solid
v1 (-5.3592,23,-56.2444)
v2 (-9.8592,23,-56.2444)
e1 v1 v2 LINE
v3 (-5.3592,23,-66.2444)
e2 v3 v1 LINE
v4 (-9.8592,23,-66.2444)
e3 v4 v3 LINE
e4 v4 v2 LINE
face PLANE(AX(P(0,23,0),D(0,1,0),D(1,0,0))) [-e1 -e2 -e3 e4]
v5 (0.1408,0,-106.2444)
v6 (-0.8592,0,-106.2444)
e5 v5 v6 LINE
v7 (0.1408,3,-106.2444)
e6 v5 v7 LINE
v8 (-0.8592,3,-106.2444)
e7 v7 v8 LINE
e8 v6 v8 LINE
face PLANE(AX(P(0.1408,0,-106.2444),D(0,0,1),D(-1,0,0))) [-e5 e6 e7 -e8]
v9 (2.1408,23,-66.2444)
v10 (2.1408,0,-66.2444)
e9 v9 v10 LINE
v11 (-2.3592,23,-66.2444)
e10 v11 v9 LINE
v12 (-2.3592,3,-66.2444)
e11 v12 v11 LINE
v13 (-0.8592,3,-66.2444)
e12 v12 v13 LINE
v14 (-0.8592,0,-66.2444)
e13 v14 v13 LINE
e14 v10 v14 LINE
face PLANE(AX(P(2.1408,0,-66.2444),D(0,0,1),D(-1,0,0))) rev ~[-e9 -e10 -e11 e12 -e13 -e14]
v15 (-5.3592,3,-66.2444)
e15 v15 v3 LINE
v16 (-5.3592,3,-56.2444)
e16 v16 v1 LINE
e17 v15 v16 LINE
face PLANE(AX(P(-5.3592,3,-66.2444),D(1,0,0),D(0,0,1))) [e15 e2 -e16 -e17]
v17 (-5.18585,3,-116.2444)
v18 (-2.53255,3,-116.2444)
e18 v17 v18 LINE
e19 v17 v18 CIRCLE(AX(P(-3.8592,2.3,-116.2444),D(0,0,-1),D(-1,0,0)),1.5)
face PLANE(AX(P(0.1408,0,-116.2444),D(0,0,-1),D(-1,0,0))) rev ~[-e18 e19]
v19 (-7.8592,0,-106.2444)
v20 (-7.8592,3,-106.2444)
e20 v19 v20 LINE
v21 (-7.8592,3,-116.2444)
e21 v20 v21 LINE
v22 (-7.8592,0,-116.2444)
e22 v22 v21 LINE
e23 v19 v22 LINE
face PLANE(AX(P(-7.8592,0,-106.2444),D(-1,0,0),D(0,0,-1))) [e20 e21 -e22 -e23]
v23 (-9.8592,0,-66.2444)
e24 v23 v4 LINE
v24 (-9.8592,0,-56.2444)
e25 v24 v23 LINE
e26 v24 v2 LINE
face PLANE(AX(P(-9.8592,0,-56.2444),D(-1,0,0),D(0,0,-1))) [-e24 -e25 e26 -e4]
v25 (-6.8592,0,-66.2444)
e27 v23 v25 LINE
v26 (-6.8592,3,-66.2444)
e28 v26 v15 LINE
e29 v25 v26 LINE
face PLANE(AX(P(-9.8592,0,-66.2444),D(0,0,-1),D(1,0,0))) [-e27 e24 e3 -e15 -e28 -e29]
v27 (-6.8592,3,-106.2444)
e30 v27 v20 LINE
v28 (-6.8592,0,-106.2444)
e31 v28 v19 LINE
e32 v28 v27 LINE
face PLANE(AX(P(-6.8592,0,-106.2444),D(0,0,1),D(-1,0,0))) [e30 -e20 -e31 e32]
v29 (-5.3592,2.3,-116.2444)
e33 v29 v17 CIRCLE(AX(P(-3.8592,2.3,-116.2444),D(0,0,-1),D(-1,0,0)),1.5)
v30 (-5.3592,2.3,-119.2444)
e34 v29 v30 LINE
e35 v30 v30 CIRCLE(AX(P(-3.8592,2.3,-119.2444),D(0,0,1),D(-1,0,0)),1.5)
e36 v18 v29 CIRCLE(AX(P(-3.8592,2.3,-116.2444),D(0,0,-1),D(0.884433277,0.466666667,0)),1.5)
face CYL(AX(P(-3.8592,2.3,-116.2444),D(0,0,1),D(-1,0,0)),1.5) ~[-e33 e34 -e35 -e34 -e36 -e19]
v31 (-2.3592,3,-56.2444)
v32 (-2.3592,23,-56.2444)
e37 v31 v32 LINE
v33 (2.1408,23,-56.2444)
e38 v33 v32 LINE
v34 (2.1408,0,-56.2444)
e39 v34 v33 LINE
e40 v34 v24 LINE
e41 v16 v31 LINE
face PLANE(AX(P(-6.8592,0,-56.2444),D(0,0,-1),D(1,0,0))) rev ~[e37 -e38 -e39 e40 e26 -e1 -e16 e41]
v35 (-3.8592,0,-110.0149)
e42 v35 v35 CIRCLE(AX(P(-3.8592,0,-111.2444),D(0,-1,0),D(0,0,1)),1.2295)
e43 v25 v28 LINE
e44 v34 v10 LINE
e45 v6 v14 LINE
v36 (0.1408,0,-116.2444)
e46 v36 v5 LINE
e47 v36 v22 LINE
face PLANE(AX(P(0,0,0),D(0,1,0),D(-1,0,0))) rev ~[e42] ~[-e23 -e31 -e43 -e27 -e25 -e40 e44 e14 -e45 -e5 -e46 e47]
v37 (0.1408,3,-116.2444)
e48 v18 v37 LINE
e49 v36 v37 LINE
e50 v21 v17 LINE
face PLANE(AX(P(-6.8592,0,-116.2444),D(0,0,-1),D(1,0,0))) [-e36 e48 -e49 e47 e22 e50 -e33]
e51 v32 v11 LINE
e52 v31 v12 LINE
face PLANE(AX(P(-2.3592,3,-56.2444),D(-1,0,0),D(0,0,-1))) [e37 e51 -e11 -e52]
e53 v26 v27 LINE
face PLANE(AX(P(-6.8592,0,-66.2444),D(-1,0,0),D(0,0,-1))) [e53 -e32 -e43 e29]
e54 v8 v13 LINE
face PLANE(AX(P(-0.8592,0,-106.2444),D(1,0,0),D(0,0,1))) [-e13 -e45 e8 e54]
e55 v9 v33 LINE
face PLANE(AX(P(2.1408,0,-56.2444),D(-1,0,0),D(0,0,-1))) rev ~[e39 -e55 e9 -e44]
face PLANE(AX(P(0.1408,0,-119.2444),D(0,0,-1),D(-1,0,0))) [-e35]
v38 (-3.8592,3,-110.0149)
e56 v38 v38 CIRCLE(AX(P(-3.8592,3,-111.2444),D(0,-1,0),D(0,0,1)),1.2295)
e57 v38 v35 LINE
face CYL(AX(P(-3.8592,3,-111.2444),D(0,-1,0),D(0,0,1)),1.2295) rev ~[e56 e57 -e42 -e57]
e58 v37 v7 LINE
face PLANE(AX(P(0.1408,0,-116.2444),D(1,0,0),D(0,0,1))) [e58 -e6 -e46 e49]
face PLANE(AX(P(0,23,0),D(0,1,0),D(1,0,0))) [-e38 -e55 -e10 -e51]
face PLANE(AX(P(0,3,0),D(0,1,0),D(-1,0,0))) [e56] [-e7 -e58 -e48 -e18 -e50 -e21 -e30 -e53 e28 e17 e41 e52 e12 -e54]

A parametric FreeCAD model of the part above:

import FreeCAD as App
import Part
import Sketcher
from FreeCAD import Vector


def add_polygon(sketch, points):
    """Adds a closed chain of lines whose ends are joined by coincident constraints."""
    first, n = sketch.GeometryCount, len(points)
    for a, b in zip(points, points[1:] + points[:1]):
        sketch.addGeometry(Part.LineSegment(App.Vector(*a, 0), App.Vector(*b, 0)), False)
    for i in range(n):
        sketch.addConstraint(Sketcher.Constraint("Coincident", first + i, 2, first + (i + 1) % n, 1))

doc = App.newDocument("Part")
body = doc.addObject("PartDesign::Body", "Body")

# Sketch on XZ plane
sketch1 = body.newObject("Sketcher::SketchObject", "Sketch")
sketch1.AttachmentSupport = (doc.getObject("XZ_Plane"), [""])
sketch1.MapMode = "FlatFace"
add_polygon(sketch1, [(-7.8592, -116.2444), (-7.8592, -106.2444), (-6.8592, -106.2444), (-6.8592, -66.2444), (-9.8592, -66.2444), (-9.8592, -56.2444), (2.1408, -56.2444), (2.1408, -66.2444), (-0.8592, -66.2444), (-0.8592, -106.2444), (0.1408, -106.2444), (0.1408, -116.2444)])  # lines 0-11
sketch1.addConstraint(Sketcher.Constraint("Vertical", 0))
sketch1.addConstraint(Sketcher.Constraint("Horizontal", 1))
sketch1.addConstraint(Sketcher.Constraint("Vertical", 2))
sketch1.addConstraint(Sketcher.Constraint("Horizontal", 3))
sketch1.addConstraint(Sketcher.Constraint("Vertical", 4))
sketch1.addConstraint(Sketcher.Constraint("Horizontal", 5))
sketch1.addConstraint(Sketcher.Constraint("Vertical", 6))
sketch1.addConstraint(Sketcher.Constraint("Horizontal", 7))
sketch1.addConstraint(Sketcher.Constraint("Vertical", 8))
sketch1.addConstraint(Sketcher.Constraint("Horizontal", 9))
sketch1.addConstraint(Sketcher.Constraint("Vertical", 10))
sketch1.addConstraint(Sketcher.Constraint("Horizontal", 11))
sketch1.addConstraint(Sketcher.Constraint("Horizontal", 3, 2, 6, 2))
sketch1.addConstraint(Sketcher.Constraint("Horizontal", 1, 2, 8, 2))
sketch1.addConstraint(Sketcher.Constraint("Equal", 3, 7))
sketch1.addConstraint(Sketcher.Constraint("Equal", 1, 9))
sketch1.addConstraint(Sketcher.Constraint("Equal", 0, 4))
sketch1.addConstraint(Sketcher.Constraint("DistanceX", 1, 1, 1, 2, 1.0))
sketch1.addConstraint(Sketcher.Constraint("DistanceX", 3, 2, 3, 1, 3.0))
sketch1.addConstraint(Sketcher.Constraint("DistanceX", 11, 2, 11, 1, 8.0))
sketch1.addConstraint(Sketcher.Constraint("DistanceY", 0, 1, 0, 2, 10.0))
sketch1.addConstraint(Sketcher.Constraint("DistanceY", 2, 1, 2, 2, 40.0))
sketch1.addConstraint(Sketcher.Constraint("DistanceX", 0, 2, -1, 1, 7.8592))
sketch1.addConstraint(Sketcher.Constraint("DistanceY", 0, 2, -1, 1, 106.2444))
pad1 = body.newObject("PartDesign::Pad", "Pad")
pad1.Profile = sketch1
pad1.Length = 3
pad1.Reversed = True

# Sketch on XZ plane
sketch2 = body.newObject("Sketcher::SketchObject", "Sketch001")
sketch2.AttachmentSupport = (doc.getObject("XZ_Plane"), [""])
sketch2.MapMode = "FlatFace"
sketch2.AttachmentOffset = App.Placement(Vector(0, 0, -3), App.Rotation())
sketch2.addGeometry(Part.Circle(Vector(-3.8592, -111.2444, 0), Vector(0, 0, 1), 1.2295), False)
sketch2.addConstraint(Sketcher.Constraint("Diameter", 0, 2.459))
sketch2.addConstraint(Sketcher.Constraint("DistanceX", 0, 3, -1, 1, 3.8592))
sketch2.addConstraint(Sketcher.Constraint("DistanceY", 0, 3, -1, 1, 111.2444))
doc.recompute()
hole = body.newObject("PartDesign::Hole", "Hole")
hole.Profile = sketch2
hole.ThreadType = "None"
hole.Diameter = 2.459
hole.DepthType = "ThroughAll"
hole.Reversed = True

# Sketch on XY plane
sketch3 = body.newObject("Sketcher::SketchObject", "Sketch002")
sketch3.AttachmentSupport = (doc.getObject("XY_Plane"), [""])
sketch3.MapMode = "FlatFace"
sketch3.AttachmentOffset = App.Placement(Vector(0, 0, -116.2444), App.Rotation())
sketch3.addGeometry(Part.Circle(Vector(-3.8592, 2.3, 0), Vector(0, 0, 1), 1.5), False)
sketch3.addConstraint(Sketcher.Constraint("Diameter", 0, 3.0))
sketch3.addConstraint(Sketcher.Constraint("DistanceY", -1, 1, 0, 3, 2.3))
sketch3.addConstraint(Sketcher.Constraint("DistanceX", 0, 3, -1, 1, 3.8592))
pad2 = body.newObject("PartDesign::Pad", "Pad001")
pad2.Profile = sketch3
pad2.Length = 3
pad2.Reversed = True

# Sketch on XZ plane
sketch4 = body.newObject("Sketcher::SketchObject", "Sketch003")
sketch4.AttachmentSupport = (doc.getObject("XZ_Plane"), [""])
sketch4.MapMode = "FlatFace"
sketch4.AttachmentOffset = App.Placement(Vector(0, 0, -3), App.Rotation())
add_polygon(sketch4, [(-2.3592, -56.2444), (2.1408, -56.2444), (2.1408, -66.2444), (-2.3592, -66.2444)])  # lines 0-3
add_polygon(sketch4, [(-9.8592, -56.2444), (-5.3592, -56.2444), (-5.3592, -66.2444), (-9.8592, -66.2444)])  # lines 4-7
sketch4.addConstraint(Sketcher.Constraint("Horizontal", 0))
sketch4.addConstraint(Sketcher.Constraint("Vertical", 1))
sketch4.addConstraint(Sketcher.Constraint("Horizontal", 2))
sketch4.addConstraint(Sketcher.Constraint("Vertical", 3))
sketch4.addConstraint(Sketcher.Constraint("Horizontal", 4))
sketch4.addConstraint(Sketcher.Constraint("Vertical", 5))
sketch4.addConstraint(Sketcher.Constraint("Horizontal", 6))
sketch4.addConstraint(Sketcher.Constraint("Vertical", 7))
sketch4.addConstraint(Sketcher.Constraint("Horizontal", 3, 2, 4, 2))
sketch4.addConstraint(Sketcher.Constraint("Horizontal", 2, 2, 5, 2))
sketch4.addConstraint(Sketcher.Constraint("Equal", 2, 4))
sketch4.addConstraint(Sketcher.Constraint("DistanceX", 4, 2, 3, 2, 3.0))
sketch4.addConstraint(Sketcher.Constraint("DistanceY", 1, 2, 1, 1, 10.0))
sketch4.addConstraint(Sketcher.Constraint("DistanceX", 0, 1, 0, 2, 4.5))
sketch4.addConstraint(Sketcher.Constraint("DistanceX", -1, 1, 0, 2, 2.1408))
sketch4.addConstraint(Sketcher.Constraint("DistanceY", 0, 2, -1, 1, 56.2444))
pad3 = body.newObject("PartDesign::Pad", "Pad002")
pad3.Profile = sketch4
pad3.Length = 20
pad3.Reversed = True

doc.recompute()
